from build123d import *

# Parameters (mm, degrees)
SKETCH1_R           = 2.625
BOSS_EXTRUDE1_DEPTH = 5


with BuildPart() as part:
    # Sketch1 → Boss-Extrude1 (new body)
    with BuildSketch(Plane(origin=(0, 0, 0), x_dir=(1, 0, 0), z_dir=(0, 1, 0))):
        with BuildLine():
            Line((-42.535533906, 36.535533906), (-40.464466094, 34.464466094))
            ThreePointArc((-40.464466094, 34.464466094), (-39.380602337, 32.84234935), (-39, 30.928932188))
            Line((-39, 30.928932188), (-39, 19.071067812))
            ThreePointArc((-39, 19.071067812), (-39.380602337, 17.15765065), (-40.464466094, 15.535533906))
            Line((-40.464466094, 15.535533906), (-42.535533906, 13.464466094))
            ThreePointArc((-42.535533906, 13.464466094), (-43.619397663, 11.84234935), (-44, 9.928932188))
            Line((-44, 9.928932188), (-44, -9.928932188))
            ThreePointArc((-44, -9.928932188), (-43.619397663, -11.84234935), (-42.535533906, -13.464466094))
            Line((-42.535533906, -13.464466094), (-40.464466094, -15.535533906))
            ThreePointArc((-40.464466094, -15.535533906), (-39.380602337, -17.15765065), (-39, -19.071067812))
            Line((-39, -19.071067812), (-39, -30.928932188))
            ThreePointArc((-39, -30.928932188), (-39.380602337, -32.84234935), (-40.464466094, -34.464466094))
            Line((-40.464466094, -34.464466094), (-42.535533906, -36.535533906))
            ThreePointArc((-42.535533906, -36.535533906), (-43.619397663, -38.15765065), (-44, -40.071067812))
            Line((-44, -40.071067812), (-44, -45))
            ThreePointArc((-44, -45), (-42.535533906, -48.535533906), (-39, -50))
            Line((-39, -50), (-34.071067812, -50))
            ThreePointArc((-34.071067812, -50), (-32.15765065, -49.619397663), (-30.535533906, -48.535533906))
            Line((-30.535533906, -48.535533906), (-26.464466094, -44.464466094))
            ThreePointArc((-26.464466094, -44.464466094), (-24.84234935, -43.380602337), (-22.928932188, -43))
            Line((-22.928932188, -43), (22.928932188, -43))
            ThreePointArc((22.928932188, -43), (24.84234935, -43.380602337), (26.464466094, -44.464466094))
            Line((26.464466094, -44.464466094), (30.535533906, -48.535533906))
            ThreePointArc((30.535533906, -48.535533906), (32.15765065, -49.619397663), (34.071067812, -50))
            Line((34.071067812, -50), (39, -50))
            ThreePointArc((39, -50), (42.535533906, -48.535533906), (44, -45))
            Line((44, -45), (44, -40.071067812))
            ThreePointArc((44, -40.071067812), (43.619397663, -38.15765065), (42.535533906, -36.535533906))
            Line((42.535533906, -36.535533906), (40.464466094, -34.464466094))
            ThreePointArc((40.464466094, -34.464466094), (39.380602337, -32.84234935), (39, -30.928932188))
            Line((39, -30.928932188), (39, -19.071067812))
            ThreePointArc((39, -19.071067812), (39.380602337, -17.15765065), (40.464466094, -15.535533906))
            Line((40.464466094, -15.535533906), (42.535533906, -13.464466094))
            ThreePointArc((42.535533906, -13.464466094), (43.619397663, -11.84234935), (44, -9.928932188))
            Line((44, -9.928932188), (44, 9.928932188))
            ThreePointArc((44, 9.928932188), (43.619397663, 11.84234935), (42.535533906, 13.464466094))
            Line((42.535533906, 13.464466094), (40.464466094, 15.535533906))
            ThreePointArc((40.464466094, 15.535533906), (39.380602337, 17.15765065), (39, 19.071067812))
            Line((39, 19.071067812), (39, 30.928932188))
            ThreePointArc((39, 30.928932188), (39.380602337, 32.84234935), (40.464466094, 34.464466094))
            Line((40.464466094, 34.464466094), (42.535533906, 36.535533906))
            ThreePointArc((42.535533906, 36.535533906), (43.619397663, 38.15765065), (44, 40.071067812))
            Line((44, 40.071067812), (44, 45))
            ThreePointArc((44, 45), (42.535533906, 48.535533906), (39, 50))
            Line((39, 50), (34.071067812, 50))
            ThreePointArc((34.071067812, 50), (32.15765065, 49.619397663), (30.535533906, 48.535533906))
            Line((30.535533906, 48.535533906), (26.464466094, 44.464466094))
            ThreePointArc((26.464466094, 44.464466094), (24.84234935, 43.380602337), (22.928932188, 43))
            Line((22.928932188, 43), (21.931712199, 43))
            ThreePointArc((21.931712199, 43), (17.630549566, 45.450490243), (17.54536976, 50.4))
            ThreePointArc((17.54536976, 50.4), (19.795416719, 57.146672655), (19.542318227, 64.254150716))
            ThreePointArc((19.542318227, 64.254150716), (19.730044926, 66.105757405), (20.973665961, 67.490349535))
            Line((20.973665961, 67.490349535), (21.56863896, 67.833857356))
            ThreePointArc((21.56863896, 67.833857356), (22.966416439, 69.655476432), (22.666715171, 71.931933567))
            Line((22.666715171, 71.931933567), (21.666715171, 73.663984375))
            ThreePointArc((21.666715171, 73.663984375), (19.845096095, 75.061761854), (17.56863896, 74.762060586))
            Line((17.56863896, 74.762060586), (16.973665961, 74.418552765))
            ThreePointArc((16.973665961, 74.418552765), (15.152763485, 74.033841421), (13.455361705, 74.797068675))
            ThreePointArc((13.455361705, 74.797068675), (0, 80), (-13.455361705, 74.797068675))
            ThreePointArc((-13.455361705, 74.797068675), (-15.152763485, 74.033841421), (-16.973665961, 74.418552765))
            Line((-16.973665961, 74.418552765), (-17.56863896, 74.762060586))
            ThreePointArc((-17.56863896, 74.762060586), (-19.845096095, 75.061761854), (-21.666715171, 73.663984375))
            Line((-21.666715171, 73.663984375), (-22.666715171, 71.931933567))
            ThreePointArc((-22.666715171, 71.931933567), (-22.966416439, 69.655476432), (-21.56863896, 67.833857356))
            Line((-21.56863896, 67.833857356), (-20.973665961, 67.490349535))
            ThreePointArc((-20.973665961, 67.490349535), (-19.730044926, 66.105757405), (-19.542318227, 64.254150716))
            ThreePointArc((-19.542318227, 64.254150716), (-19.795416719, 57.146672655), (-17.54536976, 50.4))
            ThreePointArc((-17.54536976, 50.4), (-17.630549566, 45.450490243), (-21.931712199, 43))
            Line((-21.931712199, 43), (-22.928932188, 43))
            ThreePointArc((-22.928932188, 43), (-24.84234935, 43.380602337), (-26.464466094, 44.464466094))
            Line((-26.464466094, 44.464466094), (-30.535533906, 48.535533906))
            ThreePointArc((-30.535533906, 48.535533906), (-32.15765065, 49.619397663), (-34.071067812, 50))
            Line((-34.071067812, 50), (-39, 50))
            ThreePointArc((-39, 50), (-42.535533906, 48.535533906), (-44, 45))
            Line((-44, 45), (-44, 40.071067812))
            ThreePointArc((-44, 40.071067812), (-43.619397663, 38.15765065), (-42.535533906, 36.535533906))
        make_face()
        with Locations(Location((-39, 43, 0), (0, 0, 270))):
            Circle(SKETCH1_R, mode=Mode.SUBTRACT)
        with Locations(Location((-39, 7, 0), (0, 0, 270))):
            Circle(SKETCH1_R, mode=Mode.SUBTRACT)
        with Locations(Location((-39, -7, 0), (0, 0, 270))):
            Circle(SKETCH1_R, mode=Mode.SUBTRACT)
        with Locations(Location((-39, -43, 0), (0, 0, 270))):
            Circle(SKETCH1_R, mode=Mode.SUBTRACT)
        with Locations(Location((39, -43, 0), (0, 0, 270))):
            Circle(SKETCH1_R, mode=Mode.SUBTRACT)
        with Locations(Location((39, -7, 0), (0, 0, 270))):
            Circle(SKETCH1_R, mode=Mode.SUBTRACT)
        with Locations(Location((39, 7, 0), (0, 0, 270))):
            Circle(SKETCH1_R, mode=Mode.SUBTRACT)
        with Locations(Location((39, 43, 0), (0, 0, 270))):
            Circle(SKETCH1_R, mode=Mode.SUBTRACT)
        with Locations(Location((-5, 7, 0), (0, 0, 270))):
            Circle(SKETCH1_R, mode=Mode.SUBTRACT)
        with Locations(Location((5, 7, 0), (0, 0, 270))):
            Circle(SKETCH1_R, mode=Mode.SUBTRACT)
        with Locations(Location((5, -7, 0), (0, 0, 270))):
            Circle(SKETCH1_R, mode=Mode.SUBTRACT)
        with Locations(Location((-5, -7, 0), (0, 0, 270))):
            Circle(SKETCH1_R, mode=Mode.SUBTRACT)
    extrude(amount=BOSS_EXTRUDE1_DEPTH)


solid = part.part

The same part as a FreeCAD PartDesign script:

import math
import FreeCAD as App
import Part
import Sketcher

V = App.Vector
Q = App.Units.Quantity

doc = App.newDocument("Part")
params = doc.addObject("Spreadsheet::Sheet", "Params")
for row, (alias, value) in enumerate([
    ("sketch1_radius", "5 mm"),
    ("sketch1_radius2", "20 mm"),
    ("sketch1_radius3", "3 mm"),
    ("sketch1_diameter", "5.25 mm"),
    ("sketch1_length", "2 mm"),
    ("pad1_length", "5 mm"),
], start=1):
    params.set(f"A{row}", alias)
    params.set(f"B{row}", "=" + value)
    params.setAlias(f"B{row}", alias)

body = doc.addObject("PartDesign::Body", "Body")

# Sketch on XZ plane
sketch1 = body.newObject("Sketcher::SketchObject", "Sketch")
sketch1.AttachmentSupport = (doc.getObject("XZ_Plane"), [""])
sketch1.MapMode = "FlatFace"
sketch1.addGeometry([
    Part.LineSegment(V(-42.535534, -36.535534, 0), V(-40.464466, -34.464466, 0)),  # 0
    Part.ArcOfCircle(Part.Circle(V(-44, -30.928932, 0), V(0, 0, 1), 5), math.radians(-45), math.radians(0)),  # 1
    Part.LineSegment(V(-39, -30.928932, 0), V(-39, -19.071068, 0)),  # 2
    Part.ArcOfCircle(Part.Circle(V(-44, -19.071068, 0), V(0, 0, 1), 5), math.radians(0), math.radians(45)),  # 3
    Part.LineSegment(V(-40.464466, -15.535534, 0), V(-42.535534, -13.464466, 0)),  # 4
    Part.ArcOfCircle(Part.Circle(V(-39, -9.928932, 0), V(0, 0, 1), 5), math.radians(180), math.radians(225)),  # 5
    Part.LineSegment(V(-44, -9.928932, 0), V(-44, 9.928932, 0)),  # 6
    Part.ArcOfCircle(Part.Circle(V(-39, 9.928932, 0), V(0, 0, 1), 5), math.radians(135), math.radians(180)),  # 7
    Part.LineSegment(V(-42.535534, 13.464466, 0), V(-40.464466, 15.535534, 0)),  # 8
    Part.ArcOfCircle(Part.Circle(V(-44, 19.071068, 0), V(0, 0, 1), 5), math.radians(-45), math.radians(0)),  # 9
    Part.LineSegment(V(-39, 19.071068, 0), V(-39, 30.928932, 0)),  # 10
    Part.ArcOfCircle(Part.Circle(V(-44, 30.928932, 0), V(0, 0, 1), 5), math.radians(0), math.radians(45)),  # 11
    Part.LineSegment(V(-40.464466, 34.464466, 0), V(-42.535534, 36.535534, 0)),  # 12
    Part.ArcOfCircle(Part.Circle(V(-39, 40.071068, 0), V(0, 0, 1), 5), math.radians(180), math.radians(225)),  # 13
    Part.LineSegment(V(-44, 40.071068, 0), V(-44, 45, 0)),  # 14
    Part.ArcOfCircle(Part.Circle(V(-39, 45, 0), V(0, 0, 1), 5), math.radians(90), math.radians(180)),  # 15
    Part.LineSegment(V(-39, 50, 0), V(-34.071068, 50, 0)),  # 16
    Part.ArcOfCircle(Part.Circle(V(-34.071068, 45, 0), V(0, 0, 1), 5), math.radians(45), math.radians(90)),  # 17
    Part.LineSegment(V(-30.535534, 48.535534, 0), V(-26.464466, 44.464466, 0)),  # 18
    Part.ArcOfCircle(Part.Circle(V(-22.928932, 48, 0), V(0, 0, 1), 5), math.radians(-135), math.radians(-90)),  # 19
    Part.LineSegment(V(-22.928932, 43, 0), V(22.928932, 43, 0)),  # 20
    Part.ArcOfCircle(Part.Circle(V(22.928932, 48, 0), V(0, 0, 1), 5), math.radians(-90), math.radians(-45)),  # 21
    Part.LineSegment(V(26.464466, 44.464466, 0), V(30.535534, 48.535534, 0)),  # 22
    Part.ArcOfCircle(Part.Circle(V(34.071068, 45, 0), V(0, 0, 1), 5), math.radians(90), math.radians(135)),  # 23
    Part.LineSegment(V(34.071068, 50, 0), V(39, 50, 0)),  # 24
    Part.ArcOfCircle(Part.Circle(V(39, 45, 0), V(0, 0, 1), 5), math.radians(0), math.radians(90)),  # 25
    Part.LineSegment(V(44, 45, 0), V(44, 40.071068, 0)),  # 26
    Part.ArcOfCircle(Part.Circle(V(39, 40.071068, 0), V(0, 0, 1), 5), math.radians(-45), math.radians(0)),  # 27
    Part.LineSegment(V(42.535534, 36.535534, 0), V(40.464466, 34.464466, 0)),  # 28
    Part.ArcOfCircle(Part.Circle(V(44, 30.928932, 0), V(0, 0, 1), 5), math.radians(135), math.radians(180)),  # 29
    Part.LineSegment(V(39, 30.928932, 0), V(39, 19.071068, 0)),  # 30
    Part.ArcOfCircle(Part.Circle(V(44, 19.071068, 0), V(0, 0, 1), 5), math.radians(180), math.radians(225)),  # 31
    Part.LineSegment(V(40.464466, 15.535534, 0), V(42.535534, 13.464466, 0)),  # 32
    Part.ArcOfCircle(Part.Circle(V(39, 9.928932, 0), V(0, 0, 1), 5), math.radians(0), math.radians(45)),  # 33
    Part.LineSegment(V(44, 9.928932, 0), V(44, -9.928932, 0)),  # 34
    Part.ArcOfCircle(Part.Circle(V(39, -9.928932, 0), V(0, 0, 1), 5), math.radians(-45), math.radians(0)),  # 35
    Part.LineSegment(V(42.535534, -13.464466, 0), V(40.464466, -15.535534, 0)),  # 36
    Part.ArcOfCircle(Part.Circle(V(44, -19.071068, 0), V(0, 0, 1), 5), math.radians(135), math.radians(180)),  # 37
    Part.LineSegment(V(39, -19.071068, 0), V(39, -30.928932, 0)),  # 38
    Part.ArcOfCircle(Part.Circle(V(44, -30.928932, 0), V(0, 0, 1), 5), math.radians(180), math.radians(225)),  # 39
    Part.LineSegment(V(40.464466, -34.464466, 0), V(42.535534, -36.535534, 0)),  # 40
    Part.ArcOfCircle(Part.Circle(V(39, -40.071068, 0), V(0, 0, 1), 5), math.radians(0), math.radians(45)),  # 41
    Part.LineSegment(V(44, -40.071068, 0), V(44, -45, 0)),  # 42
    Part.ArcOfCircle(Part.Circle(V(39, -45, 0), V(0, 0, 1), 5), math.radians(-90), math.radians(0)),  # 43
    Part.LineSegment(V(39, -50, 0), V(34.071068, -50, 0)),  # 44
    Part.ArcOfCircle(Part.Circle(V(34.071068, -45, 0), V(0, 0, 1), 5), math.radians(-135), math.radians(-90)),  # 45
    Part.LineSegment(V(30.535534, -48.535534, 0), V(26.464466, -44.464466, 0)),  # 46
    Part.ArcOfCircle(Part.Circle(V(22.928932, -48, 0), V(0, 0, 1), 5), math.radians(45), math.radians(90)),  # 47
    Part.LineSegment(V(22.928932, -43, 0), V(21.931712, -43, 0)),  # 48
    Part.ArcOfCircle(Part.Circle(V(21.931712, -48, 0), V(0, 0, 1), 5), math.radians(90), math.radians(208.685402)),  # 49
    Part.ArcOfCircle(Part.Circle(V(0, -60, 0), V(0, 0, 1), 20), math.radians(-12.281068), math.radians(28.685402)),  # 50
    Part.ArcOfCircle(Part.Circle(V(22.473666, -64.892273, 0), V(0, 0, 1), 3), math.radians(167.718932), math.radians(240)),  # 51
    Part.LineSegment(V(20.973666, -67.49035, 0), V(21.568639, -67.833857, 0)),  # 52
    Part.ArcOfCircle(Part.Circle(V(20.068639, -70.431934, 0), V(0, 0, 1), 3), math.radians(-30), math.radians(60)),  # 53
    Part.LineSegment(V(22.666715, -71.931934, 0), V(21.666715, -73.663984, 0)),  # 54
    Part.ArcOfCircle(Part.Circle(V(19.068639, -72.163984, 0), V(0, 0, 1), 3), math.radians(-120), math.radians(-30)),  # 55
    Part.LineSegment(V(17.568639, -74.762061, 0), V(16.973666, -74.418553, 0)),  # 56
    Part.ArcOfCircle(Part.Circle(V(15.473666, -77.016629, 0), V(0, 0, 1), 3), math.radians(60), math.radians(132.281068)),  # 57
    Part.ArcOfCircle(Part.Circle(V(0, -60, 0), V(0, 0, 1), 20), math.radians(-132.281068), math.radians(-47.718932)),  # 58
    Part.ArcOfCircle(Part.Circle(V(-15.473666, -77.016629, 0), V(0, 0, 1), 3), math.radians(47.718932), math.radians(120)),  # 59
    Part.LineSegment(V(-16.973666, -74.418553, 0), V(-17.568639, -74.762061, 0)),  # 60
    Part.ArcOfCircle(Part.Circle(V(-19.068639, -72.163984, 0), V(0, 0, 1), 3), math.radians(-150), math.radians(-60)),  # 61
    Part.LineSegment(V(-21.666715, -73.663984, 0), V(-22.666715, -71.931934, 0)),  # 62
    Part.ArcOfCircle(Part.Circle(V(-20.068639, -70.431934, 0), V(0, 0, 1), 3), math.radians(120), math.radians(210)),  # 63
    Part.LineSegment(V(-21.568639, -67.833857, 0), V(-20.973666, -67.49035, 0)),  # 64
    Part.ArcOfCircle(Part.Circle(V(-22.473666, -64.892273, 0), V(0, 0, 1), 3), math.radians(-60), math.radians(12.281068)),  # 65
    Part.ArcOfCircle(Part.Circle(V(0, -60, 0), V(0, 0, 1), 20), math.radians(151.314598), math.radians(192.281068)),  # 66
    Part.ArcOfCircle(Part.Circle(V(-21.931712, -48, 0), V(0, 0, 1), 5), math.radians(-28.685402), math.radians(90)),  # 67
    Part.LineSegment(V(-21.931712, -43, 0), V(-22.928932, -43, 0)),  # 68
    Part.ArcOfCircle(Part.Circle(V(-22.928932, -48, 0), V(0, 0, 1), 5), math.radians(90), math.radians(135)),  # 69
    Part.LineSegment(V(-26.464466, -44.464466, 0), V(-30.535534, -48.535534, 0)),  # 70
    Part.ArcOfCircle(Part.Circle(V(-34.071068, -45, 0), V(0, 0, 1), 5), math.radians(-90), math.radians(-45)),  # 71
    Part.LineSegment(V(-34.071068, -50, 0), V(-39, -50, 0)),  # 72
    Part.ArcOfCircle(Part.Circle(V(-39, -45, 0), V(0, 0, 1), 5), math.radians(180), math.radians(270)),  # 73
    Part.LineSegment(V(-44, -45, 0), V(-44, -40.071068, 0)),  # 74
    Part.ArcOfCircle(Part.Circle(V(-39, -40.071068, 0), V(0, 0, 1), 5), math.radians(135), math.radians(180)),  # 75
    Part.Circle(V(-39, 43, 0), V(0, 0, 1), 2.625),  # 76
    Part.Circle(V(-39, 7, 0), V(0, 0, 1), 2.625),  # 77
    Part.Circle(V(-5, 7, 0), V(0, 0, 1), 2.625),  # 78
    Part.Circle(V(39, 43, 0), V(0, 0, 1), 2.625),  # 79
    Part.Circle(V(5, 7, 0), V(0, 0, 1), 2.625),  # 80
    Part.Circle(V(39, 7, 0), V(0, 0, 1), 2.625),  # 81
    Part.Circle(V(-39, -7, 0), V(0, 0, 1), 2.625),  # 82
    Part.Circle(V(-5, -7, 0), V(0, 0, 1), 2.625),  # 83
    Part.Circle(V(-39, -43, 0), V(0, 0, 1), 2.625),  # 84
    Part.Circle(V(5, -7, 0), V(0, 0, 1), 2.625),  # 85
    Part.Circle(V(39, -7, 0), V(0, 0, 1), 2.625),  # 86
    Part.Circle(V(39, -43, 0), V(0, 0, 1), 2.625),  # 87
], False)
sketch1.addConstraint([
    Sketcher.Constraint("Tangent", 0, 2, 1, 1),
    Sketcher.Constraint("Tangent", 1, 2, 2, 1),
    Sketcher.Constraint("Tangent", 2, 2, 3, 1),
    Sketcher.Constraint("Tangent", 3, 2, 4, 1),
    Sketcher.Constraint("Tangent", 4, 2, 5, 2),
    Sketcher.Constraint("Tangent", 5, 1, 6, 1),
    Sketcher.Constraint("Tangent", 6, 2, 7, 2),
    Sketcher.Constraint("Tangent", 7, 1, 8, 1),
    Sketcher.Constraint("Tangent", 8, 2, 9, 1),
    Sketcher.Constraint("Tangent", 9, 2, 10, 1),
    Sketcher.Constraint("Tangent", 10, 2, 11, 1),
    Sketcher.Constraint("Tangent", 11, 2, 12, 1),
    Sketcher.Constraint("Tangent", 12, 2, 13, 2),
    Sketcher.Constraint("Tangent", 13, 1, 14, 1),
    Sketcher.Constraint("Tangent", 14, 2, 15, 2),
    Sketcher.Constraint("Tangent", 15, 1, 16, 1),
    Sketcher.Constraint("Tangent", 16, 2, 17, 2),
    Sketcher.Constraint("Tangent", 17, 1, 18, 1),
    Sketcher.Constraint("Tangent", 18, 2, 19, 1),
    Sketcher.Constraint("Tangent", 19, 2, 20, 1),
    Sketcher.Constraint("Tangent", 20, 2, 21, 1),
    Sketcher.Constraint("Tangent", 21, 2, 22, 1),
    Sketcher.Constraint("Tangent", 22, 2, 23, 2),
    Sketcher.Constraint("Tangent", 23, 1, 24, 1),
    Sketcher.Constraint("Tangent", 24, 2, 25, 2),
    Sketcher.Constraint("Tangent", 25, 1, 26, 1),
    Sketcher.Constraint("Tangent", 26, 2, 27, 2),
    Sketcher.Constraint("Tangent", 27, 1, 28, 1),
    Sketcher.Constraint("Tangent", 28, 2, 29, 1),
    Sketcher.Constraint("Tangent", 29, 2, 30, 1),
    Sketcher.Constraint("Tangent", 30, 2, 31, 1),
    Sketcher.Constraint("Tangent", 31, 2, 32, 1),
    Sketcher.Constraint("Tangent", 32, 2, 33, 2),
    Sketcher.Constraint("Tangent", 33, 1, 34, 1),
    Sketcher.Constraint("Tangent", 34, 2, 35, 2),
    Sketcher.Constraint("Tangent", 35, 1, 36, 1),
    Sketcher.Constraint("Tangent", 36, 2, 37, 1),
    Sketcher.Constraint("Tangent", 37, 2, 38, 1),
    Sketcher.Constraint("Tangent", 38, 2, 39, 1),
    Sketcher.Constraint("Tangent", 39, 2, 40, 1),
    Sketcher.Constraint("Tangent", 40, 2, 41, 2),
    Sketcher.Constraint("Tangent", 41, 1, 42, 1),
    Sketcher.Constraint("Tangent", 42, 2, 43, 2),
    Sketcher.Constraint("Tangent", 43, 1, 44, 1),
    Sketcher.Constraint("Tangent", 44, 2, 45, 2),
    Sketcher.Constraint("Tangent", 45, 1, 46, 1),
    Sketcher.Constraint("Tangent", 46, 2, 47, 1),
    Sketcher.Constraint("Tangent", 47, 2, 48, 1),
    Sketcher.Constraint("Tangent", 48, 2, 49, 1),
    Sketcher.Constraint("Tangent", 49, 2, 50, 2),
    Sketcher.Constraint("Tangent", 50, 1, 51, 1),
    Sketcher.Constraint("Tangent", 51, 2, 52, 1),
    Sketcher.Constraint("Tangent", 52, 2, 53, 2),
    Sketcher.Constraint("Tangent", 53, 1, 54, 1),
    Sketcher.Constraint("Tangent", 54, 2, 55, 2),
    Sketcher.Constraint("Tangent", 55, 1, 56, 1),
    Sketcher.Constraint("Tangent", 56, 2, 57, 1),
    Sketcher.Constraint("Tangent", 57, 2, 58, 2),
    Sketcher.Constraint("Tangent", 58, 1, 59, 1),
    Sketcher.Constraint("Tangent", 59, 2, 60, 1),
    Sketcher.Constraint("Tangent", 60, 2, 61, 2),
    Sketcher.Constraint("Tangent", 61, 1, 62, 1),
    Sketcher.Constraint("Tangent", 62, 2, 63, 2),
    Sketcher.Constraint("Tangent", 63, 1, 64, 1),
    Sketcher.Constraint("Tangent", 64, 2, 65, 1),
    Sketcher.Constraint("Tangent", 65, 2, 66, 2),
    Sketcher.Constraint("Tangent", 66, 1, 67, 1),
    Sketcher.Constraint("Tangent", 67, 2, 68, 1),
    Sketcher.Constraint("Tangent", 68, 2, 69, 1),
    Sketcher.Constraint("Tangent", 69, 2, 70, 1),
    Sketcher.Constraint("Tangent", 70, 2, 71, 2),
    Sketcher.Constraint("Tangent", 71, 1, 72, 1),
    Sketcher.Constraint("Tangent", 72, 2, 73, 2),
    Sketcher.Constraint("Tangent", 73, 1, 74, 1),
    Sketcher.Constraint("Tangent", 74, 2, 75, 2),
    Sketcher.Constraint("Tangent", 75, 1, 0, 1),
    Sketcher.Constraint("Vertical", 2),
    Sketcher.Constraint("Vertical", 6),
    Sketcher.Constraint("Vertical", 10),
    Sketcher.Constraint("Vertical", 14),
    Sketcher.Constraint("Horizontal", 16),
    Sketcher.Constraint("Horizontal", 20),
    Sketcher.Constraint("Horizontal", 24),
    Sketcher.Constraint("Vertical", 26),
    Sketcher.Constraint("Vertical", 30),
    Sketcher.Constraint("Vertical", 34),
    Sketcher.Constraint("Vertical", 38),
    Sketcher.Constraint("Vertical", 42),
    Sketcher.Constraint("Horizontal", 44),
    Sketcher.Constraint("Horizontal", 48),
    Sketcher.Constraint("Horizontal", 68),
    Sketcher.Constraint("Horizontal", 72),
    Sketcher.Constraint("Vertical", 74),
    Sketcher.Constraint("Coincident", 58, 3, 50, 3),
    Sketcher.Constraint("Coincident", 66, 3, 50, 3),
    Sketcher.Constraint("Equal", 1, 3),
    Sketcher.Constraint("Equal", 3, 5),
    Sketcher.Constraint("Equal", 5, 7),
    Sketcher.Constraint("Equal", 7, 9),
    Sketcher.Constraint("Equal", 9, 11),
    Sketcher.Constraint("Equal", 11, 13),
    Sketcher.Constraint("Equal", 13, 15),
    Sketcher.Constraint("Equal", 15, 17),
    Sketcher.Constraint("Equal", 17, 19),
    Sketcher.Constraint("Equal", 19, 21),
    Sketcher.Constraint("Equal", 21, 23),
    Sketcher.Constraint("Equal", 23, 25),
    Sketcher.Constraint("Equal", 25, 27),
    Sketcher.Constraint("Equal", 27, 29),
    Sketcher.Constraint("Equal", 29, 31),
    Sketcher.Constraint("Equal", 31, 33),
    Sketcher.Constraint("Equal", 33, 35),
    Sketcher.Constraint("Equal", 35, 37),
    Sketcher.Constraint("Equal", 37, 39),
    Sketcher.Constraint("Equal", 39, 41),
    Sketcher.Constraint("Equal", 41, 43),
    Sketcher.Constraint("Equal", 43, 45),
    Sketcher.Constraint("Equal", 45, 47),
    Sketcher.Constraint("Equal", 47, 49),
    Sketcher.Constraint("Equal", 51, 53),
    Sketcher.Constraint("Equal", 53, 55),
    Sketcher.Constraint("Equal", 55, 57),
    Sketcher.Constraint("Equal", 50, 58),
    Sketcher.Constraint("Equal", 57, 59),
    Sketcher.Constraint("Equal", 59, 61),
    Sketcher.Constraint("Equal", 61, 63),
    Sketcher.Constraint("Equal", 63, 65),
    Sketcher.Constraint("Equal", 58, 66),
    Sketcher.Constraint("Equal", 49, 67),
    Sketcher.Constraint("Equal", 67, 69),
    Sketcher.Constraint("Equal", 69, 71),
    Sketcher.Constraint("Equal", 71, 73),
    Sketcher.Constraint("Equal", 73, 75),
    Sketcher.Constraint("Equal", 76, 77),
    Sketcher.Constraint("Equal", 77, 78),
    Sketcher.Constraint("Equal", 78, 79),
    Sketcher.Constraint("Equal", 79, 80),
    Sketcher.Constraint("Equal", 80, 81),
    Sketcher.Constraint("Equal", 81, 82),
    Sketcher.Constraint("Equal", 82, 83),
    Sketcher.Constraint("Equal", 83, 84),
    Sketcher.Constraint("Equal", 84, 85),
    Sketcher.Constraint("Equal", 85, 86),
    Sketcher.Constraint("Equal", 86, 87),
    Sketcher.Constraint("Symmetric", 1, 3, 29, 3, -1, 1),
    Sketcher.Constraint("Symmetric", 5, 3, 33, 3, -1, 1),
    Sketcher.Constraint("Symmetric", 9, 3, 37, 3, -1, 1),
    Sketcher.Constraint("Symmetric", 13, 3, 41, 3, -1, 1),
    Sketcher.Constraint("Symmetric", 17, 3, 45, 3, -1, 1),
    Sketcher.Constraint("Symmetric", 19, 3, 47, 3, -1, 1),
    Sketcher.Constraint("Symmetric", 21, 3, 69, 3, -1, 1),
    Sketcher.Constraint("Symmetric", 23, 3, 71, 3, -1, 1),
    Sketcher.Constraint("Symmetric", 27, 3, 75, 3, -1, 1),
    Sketcher.Constraint("Symmetric", 81, 3, 82, 3, -1, 1),
    Sketcher.Constraint("Symmetric", 80, 3, 83, 3, -1, 1),
    Sketcher.Constraint("Symmetric", 79, 3, 84, 3, -1, 1),
    Sketcher.Constraint("Symmetric", 78, 3, 85, 3, -1, 1),
    Sketcher.Constraint("Symmetric", 77, 3, 86, 3, -1, 1),
    Sketcher.Constraint("Symmetric", 76, 3, 87, 3, -1, 1),
    Sketcher.Constraint("Symmetric", 17, 3, 23, 3, -2),
    Sketcher.Constraint("Symmetric", 13, 3, 27, 3, -2),
    Sketcher.Constraint("Symmetric", 11, 3, 29, 3, -2),
    Sketcher.Constraint("Symmetric", 57, 3, 59, 3, -2),
    Sketcher.Constraint("Symmetric", 55, 3, 61, 3, -2),
    Sketcher.Constraint("Symmetric", 53, 3, 63, 3, -2),
    Sketcher.Constraint("Symmetric", 76, 3, 79, 3, -2),
    Sketcher.Constraint("Symmetric", 78, 3, 80, 3, -2),
    Sketcher.Constraint("Symmetric", 77, 3, 81, 3, -2),
    Sketcher.Constraint("Symmetric", 8, 2, 31, 2, -2),
    Sketcher.Constraint("Symmetric", 4, 2, 35, 1, -2),
    Sketcher.Constraint("Perpendicular", 0, 4),
    Sketcher.Constraint("Perpendicular", 4, 8),
    Sketcher.Constraint("Parallel", 12, 18),
    Sketcher.Constraint("Perpendicular", 18, 22),
    Sketcher.Constraint("Perpendicular", 36, 40),
    Sketcher.Constraint("Perpendicular", 52, 54),
    Sketcher.Constraint("Perpendicular", 54, 56),
    Sketcher.Constraint("Perpendicular", 62, 64),
    Sketcher.Constraint("Horizontal", 77, 3, 78, 3),
    Sketcher.Constraint("Horizontal", 79, 3, 19, 2),
    Sketcher.Constraint("Vertical", 7, 3, 13, 3),
    Sketcher.Constraint("Vertical", 75, 3, 76, 3),
    Sketcher.Constraint("Vertical", 76, 3, 77, 3),
    Sketcher.Constraint("Vertical", 84, 3, 1, 2),
    Sketcher.Constraint("Equal", 72, 14),
    Sketcher.Constraint("Equal", 52, 56),
    Sketcher.Constraint("Radius", 1, Q("5 mm")),
    Sketcher.Constraint("Radius", 50, Q("20 mm")),
    Sketcher.Constraint("Radius", 51, Q("3 mm")),
    Sketcher.Constraint("Diameter", 76, Q("5.25 mm")),
    Sketcher.Constraint("Angle", 52, Q("-30 deg")),
    Sketcher.Constraint("Distance", 54, Q("2 mm")),
    Sketcher.Constraint("DistanceX", 1, 3, -1, 1, Q("44 mm")),
    Sketcher.Constraint("DistanceY", -1, 1, 15, 3, Q("45 mm")),
    Sketcher.Constraint("DistanceY", -1, 1, 19, 3, Q("48 mm")),
    Sketcher.Constraint("DistanceY", 50, 3, -1, 1, Q("60 mm")),
    Sketcher.Constraint("DistanceY", -1, 1, 77, 3, Q("7 mm")),
    Sketcher.Constraint("DistanceX", 78, 3, -1, 1, Q("5 mm")),
    Sketcher.Constraint("DistanceX", 48, 2, 48, 1, Q("0.99722 mm")),
    Sketcher.Constraint("DistanceY", 2, 1, 2, 2, Q("11.857864 mm")),
    Sketcher.Constraint("DistanceX", -1, 1, 53, 3, Q("20.068639 mm")),
])
sketch1.setExpression("Constraints[186]", "Params.sketch1_radius")
sketch1.setExpression("Constraints[187]", "Params.sketch1_radius2")
sketch1.setExpression("Constraints[188]", "Params.sketch1_radius3")
sketch1.setExpression("Constraints[189]", "Params.sketch1_diameter")
sketch1.setExpression("Constraints[191]", "Params.sketch1_length")
pad1 = body.newObject("PartDesign::Pad", "Pad")
pad1.Profile = sketch1
pad1.setExpression("Length", "Params.pad1_length")
pad1.Reversed = True

doc.recompute()
